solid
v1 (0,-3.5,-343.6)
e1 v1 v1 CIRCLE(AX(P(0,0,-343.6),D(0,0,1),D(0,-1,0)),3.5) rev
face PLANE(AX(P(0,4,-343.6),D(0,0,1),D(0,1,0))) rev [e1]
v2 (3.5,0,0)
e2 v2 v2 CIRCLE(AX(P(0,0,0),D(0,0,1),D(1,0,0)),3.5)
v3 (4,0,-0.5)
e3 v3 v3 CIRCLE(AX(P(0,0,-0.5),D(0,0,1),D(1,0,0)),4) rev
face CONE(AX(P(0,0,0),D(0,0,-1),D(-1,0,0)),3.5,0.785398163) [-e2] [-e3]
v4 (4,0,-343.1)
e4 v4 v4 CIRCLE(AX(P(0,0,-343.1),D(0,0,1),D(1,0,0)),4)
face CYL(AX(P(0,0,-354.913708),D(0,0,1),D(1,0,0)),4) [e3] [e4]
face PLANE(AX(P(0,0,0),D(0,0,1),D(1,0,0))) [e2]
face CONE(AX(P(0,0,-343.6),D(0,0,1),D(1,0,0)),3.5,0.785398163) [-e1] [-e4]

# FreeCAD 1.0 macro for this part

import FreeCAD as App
import Part
import Sketcher
from FreeCAD import Vector
Q = App.Units.Quantity


def edges_at(feature, points):
    """Names of the edges that pass closest to the given points."""
    edges = feature.Shape.Edges
    near = lambda p: min(range(len(edges)), key=lambda i: edges[i].distToShape(Part.Vertex(*p))[0])
    return sorted({f"Edge{near(p) + 1}" for p in points})

doc = App.newDocument("Part")
params = doc.addObject("Spreadsheet::Sheet", "Params")
for row, (alias, value) in enumerate([
    ("sketch1_diameter", "8 mm"),
    ("pad1_length", "343.6 mm"),
    ("chamfer_size", "0.5 mm"),
], start=1):
    params.set(f"A{row}", alias)
    params.set(f"B{row}", "=" + value)
    params.setAlias(f"B{row}", alias)

body = doc.addObject("PartDesign::Body", "Body")

sketch1 = body.newObject("Sketcher::SketchObject", "Sketch")
sketch1.AttachmentSupport = (doc.getObject("XY_Plane"), [""])
sketch1.MapMode = "FlatFace"
sketch1.addGeometry(Part.Circle(Vector(0, 0, 0), Vector(0, 0, 1), 4), False)
sketch1.addConstraint([
    Sketcher.Constraint("Coincident", 0, 3, -1, 1),
    Sketcher.Constraint("Diameter", 0, Q("8 mm")),
])
sketch1.setExpression("Constraints[1]", "Params.sketch1_diameter")
pad1 = body.newObject("PartDesign::Pad", "Pad")
pad1.Profile = sketch1
pad1.setExpression("Length", "Params.pad1_length")
pad1.Reversed = True
doc.recompute()

chamfer = body.newObject("PartDesign::Chamfer", "Chamfer")
chamfer.Base = (pad1, edges_at(pad1, [(-4, 0, 0), (-4, 0, -343.6)]))
chamfer.setExpression("Size", "Params.chamfer_size")

doc.recompute()
